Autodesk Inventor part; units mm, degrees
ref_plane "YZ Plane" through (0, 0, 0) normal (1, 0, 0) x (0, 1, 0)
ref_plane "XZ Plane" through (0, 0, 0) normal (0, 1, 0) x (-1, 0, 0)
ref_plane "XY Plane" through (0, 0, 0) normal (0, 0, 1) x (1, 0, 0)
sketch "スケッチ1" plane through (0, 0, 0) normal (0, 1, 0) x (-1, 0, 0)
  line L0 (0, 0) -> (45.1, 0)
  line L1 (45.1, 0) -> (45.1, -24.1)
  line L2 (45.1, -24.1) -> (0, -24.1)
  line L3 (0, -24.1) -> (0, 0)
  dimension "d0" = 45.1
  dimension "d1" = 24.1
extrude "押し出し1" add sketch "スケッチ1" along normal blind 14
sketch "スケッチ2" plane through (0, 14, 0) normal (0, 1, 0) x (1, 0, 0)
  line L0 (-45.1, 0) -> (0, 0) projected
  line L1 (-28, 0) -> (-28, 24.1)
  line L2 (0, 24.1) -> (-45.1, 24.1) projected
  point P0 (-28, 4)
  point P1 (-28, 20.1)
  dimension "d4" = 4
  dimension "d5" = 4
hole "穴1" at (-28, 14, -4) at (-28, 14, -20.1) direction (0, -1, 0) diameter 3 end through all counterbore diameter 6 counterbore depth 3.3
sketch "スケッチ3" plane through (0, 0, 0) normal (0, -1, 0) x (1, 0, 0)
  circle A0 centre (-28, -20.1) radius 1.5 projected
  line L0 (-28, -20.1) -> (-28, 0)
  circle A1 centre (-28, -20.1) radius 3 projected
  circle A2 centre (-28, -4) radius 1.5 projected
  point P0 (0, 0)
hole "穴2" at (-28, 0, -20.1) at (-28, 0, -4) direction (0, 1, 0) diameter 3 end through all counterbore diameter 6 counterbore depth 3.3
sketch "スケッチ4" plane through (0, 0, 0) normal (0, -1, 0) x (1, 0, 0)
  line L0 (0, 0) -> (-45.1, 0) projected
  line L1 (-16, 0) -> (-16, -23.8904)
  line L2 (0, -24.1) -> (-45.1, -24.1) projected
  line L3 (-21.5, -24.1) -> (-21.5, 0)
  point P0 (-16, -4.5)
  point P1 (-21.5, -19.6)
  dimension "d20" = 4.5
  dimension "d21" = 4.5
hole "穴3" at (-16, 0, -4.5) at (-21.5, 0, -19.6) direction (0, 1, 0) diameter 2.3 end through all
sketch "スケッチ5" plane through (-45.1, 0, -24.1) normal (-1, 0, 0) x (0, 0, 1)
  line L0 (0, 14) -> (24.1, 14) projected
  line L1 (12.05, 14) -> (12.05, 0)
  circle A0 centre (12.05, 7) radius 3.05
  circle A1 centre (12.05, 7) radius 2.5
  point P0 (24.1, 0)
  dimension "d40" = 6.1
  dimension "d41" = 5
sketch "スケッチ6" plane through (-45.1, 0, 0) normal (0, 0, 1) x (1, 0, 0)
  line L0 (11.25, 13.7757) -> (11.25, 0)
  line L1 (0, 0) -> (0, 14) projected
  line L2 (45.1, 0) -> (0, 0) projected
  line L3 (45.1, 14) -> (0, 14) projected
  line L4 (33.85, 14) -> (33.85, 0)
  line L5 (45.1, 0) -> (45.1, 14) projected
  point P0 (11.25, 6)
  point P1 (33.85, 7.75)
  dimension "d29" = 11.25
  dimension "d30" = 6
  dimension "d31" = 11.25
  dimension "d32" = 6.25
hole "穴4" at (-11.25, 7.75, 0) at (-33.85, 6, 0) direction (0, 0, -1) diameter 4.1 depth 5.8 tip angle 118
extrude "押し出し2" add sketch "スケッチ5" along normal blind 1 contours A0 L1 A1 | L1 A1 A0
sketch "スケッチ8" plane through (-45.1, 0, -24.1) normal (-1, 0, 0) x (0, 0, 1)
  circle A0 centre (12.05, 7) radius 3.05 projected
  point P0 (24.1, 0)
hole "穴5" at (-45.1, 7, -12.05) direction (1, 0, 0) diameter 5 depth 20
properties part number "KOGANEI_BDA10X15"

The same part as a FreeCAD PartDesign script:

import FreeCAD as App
import Part
import Sketcher
Q = App.Units.Quantity


def add_polygon(sketch, points):
    """Adds a closed chain of lines whose ends are joined by coincident constraints."""
    first, n = sketch.GeometryCount, len(points)
    for a, b in zip(points, points[1:] + points[:1]):
        sketch.addGeometry(Part.LineSegment(App.Vector(*a, 0), App.Vector(*b, 0)), False)
    for i in range(n):
        sketch.addConstraint(Sketcher.Constraint("Coincident", first + i, 2, first + (i + 1) % n, 1))

doc = App.newDocument("Part")
body = doc.addObject("PartDesign::Body", "Body")

sketch1 = body.newObject("Sketcher::SketchObject", "Sketch")
sketch1.AttachmentSupport = (doc.getObject("XZ_Plane"), [""])
sketch1.MapMode = "FlatFace"
add_polygon(sketch1, [(-45, 0), (0, 0), (0, -24), (-45, -24)])
sketch1.addConstraint([
    Sketcher.Constraint("Horizontal", 0),
    Sketcher.Constraint("Vertical", 1),
    Sketcher.Constraint("Horizontal", 2),
    Sketcher.Constraint("Vertical", 3),
    Sketcher.Constraint("Coincident", 0, 2, -1, 1),
    Sketcher.Constraint("DistanceX", 0, 1, 0, 2, Q("45.1 mm")),
    Sketcher.Constraint("DistanceY", 1, 2, 1, 1, Q("24.1 mm")),
])
pad1 = body.newObject("PartDesign::Pad", "Pad")
pad1.Profile = sketch1
pad1.Length = 14
pad1.Reversed = True

sketch2 = body.newObject("Sketcher::SketchObject", "Sketch001")
sketch2.AttachmentSupport = (doc.getObject("XZ_Plane"), [""])
sketch2.MapMode = "FlatFace"
sketch2.AttachmentOffset = App.Placement(App.Vector(0, 0, -14), App.Rotation())
sketch2.addGeometry([
    Part.Circle(App.Vector(-28, -4, 0), App.Vector(0, 0, 1), 1.5),
    Part.Circle(App.Vector(-28, -20.1, 0), App.Vector(0, 0, 1), 1.5),
], False)
sketch2.addConstraint([
    Sketcher.Constraint("Equal", 0, 1),
    Sketcher.Constraint("Vertical", 0, 3, 1, 3),
    Sketcher.Constraint("Diameter", 0, Q("3 mm")),
    Sketcher.Constraint("DistanceX", 0, 3, -1, 1, Q("28 mm")),
    Sketcher.Constraint("DistanceY", 0, 3, -1, 1, Q("4 mm")),
    Sketcher.Constraint("DistanceY", 1, 3, -1, 1, Q("20.1 mm")),
])
doc.recompute()
hole = body.newObject("PartDesign::Hole", "Hole")
hole.Profile = sketch2
hole.ThreadType = "None"
hole.Diameter = 3
hole.DepthType = "ThroughAll"
hole.HoleCutType = "Counterbore"
hole.HoleCutDiameter = 6
hole.HoleCutDepth = 3.3
hole.Reversed = True

sketch3 = body.newObject("Sketcher::SketchObject", "Sketch002")
sketch3.AttachmentSupport = (doc.getObject("XZ_Plane"), [""])
sketch3.MapMode = "FlatFace"
sketch3.addGeometry([
    Part.Circle(App.Vector(-28, -20.1, 0), App.Vector(0, 0, 1), 1.5),
    Part.Circle(App.Vector(-28, -4, 0), App.Vector(0, 0, 1), 1.5),
], False)
sketch3.addConstraint([
    Sketcher.Constraint("Equal", 0, 1),
    Sketcher.Constraint("Vertical", 0, 3, 1, 3),
    Sketcher.Constraint("Diameter", 0, Q("3 mm")),
    Sketcher.Constraint("DistanceX", 0, 3, -1, 1, Q("28 mm")),
    Sketcher.Constraint("DistanceY", 1, 3, -1, 1, Q("4 mm")),
    Sketcher.Constraint("DistanceY", 0, 3, -1, 1, Q("20.1 mm")),
])
doc.recompute()
hole2 = body.newObject("PartDesign::Hole", "Hole001")
hole2.Profile = sketch3
hole2.ThreadType = "None"
hole2.Diameter = 3
hole2.DepthType = "ThroughAll"
hole2.HoleCutType = "Counterbore"
hole2.HoleCutDiameter = 6
hole2.HoleCutDepth = 3.3

sketch4 = body.newObject("Sketcher::SketchObject", "Sketch003")
sketch4.AttachmentSupport = (doc.getObject("XZ_Plane"), [""])
sketch4.MapMode = "FlatFace"
sketch4.addGeometry([
    Part.Circle(App.Vector(-16, -4.5, 0), App.Vector(0, 0, 1), 1.1),
    Part.Circle(App.Vector(-21.5, -19.6, 0), App.Vector(0, 0, 1), 1.1),
], False)
sketch4.addConstraint([
    Sketcher.Constraint("Equal", 0, 1),
    Sketcher.Constraint("Diameter", 0, Q("2.3 mm")),
    Sketcher.Constraint("DistanceX", 0, 3, -1, 1, Q("16 mm")),
    Sketcher.Constraint("DistanceY", 0, 3, -1, 1, Q("4.5 mm")),
    Sketcher.Constraint("DistanceX", 1, 3, -1, 1, Q("21.5 mm")),
    Sketcher.Constraint("DistanceY", 1, 3, -1, 1, Q("19.6 mm")),
])
doc.recompute()
hole3 = body.newObject("PartDesign::Hole", "Hole002")
hole3.Profile = sketch4
hole3.ThreadType = "None"
hole3.Diameter = 2.3
hole3.DepthType = "ThroughAll"

sketch5 = body.newObject("Sketcher::SketchObject", "Sketch004")
sketch5.AttachmentSupport = (doc.getObject("XY_Plane"), [""])
sketch5.MapMode = "FlatFace"
sketch5.addGeometry([
    Part.Circle(App.Vector(-11.2, 7.8, 0), App.Vector(0, 0, 1), 2),
    Part.Circle(App.Vector(-33.9, 6, 0), App.Vector(0, 0, 1), 2),
], False)
sketch5.addConstraint([
    Sketcher.Constraint("Equal", 0, 1),
    Sketcher.Constraint("Diameter", 0, Q("4.1 mm")),
    Sketcher.Constraint("DistanceY", -1, 1, 1, 3, Q("6 mm")),
    Sketcher.Constraint("DistanceX", 1, 3, 0, 3, Q("22.6 mm")),
    Sketcher.Constraint("DistanceX", 0, 3, -1, 1, Q("11.25 mm")),
    Sketcher.Constraint("DistanceY", -1, 1, 0, 3, Q("7.75 mm")),
])
doc.recompute()
hole4 = body.newObject("PartDesign::Hole", "Hole003")
hole4.Profile = sketch5
hole4.ThreadType = "None"
hole4.Diameter = 4.1
hole4.DepthType = "Dimension"
hole4.Depth = 5.8
hole4.DrillPoint = "Angled"
hole4.DrillPointAngle = 118

sketch6 = body.newObject("Sketcher::SketchObject", "Sketch005")
sketch6.AttachmentSupport = (doc.getObject("YZ_Plane"), [""])
sketch6.MapMode = "FlatFace"
sketch6.AttachmentOffset = App.Placement(App.Vector(0, 0, -45.1), App.Rotation())
sketch6.addGeometry([
    Part.Circle(App.Vector(7, -12.1, 0), App.Vector(0, 0, 1), 3),
    Part.Circle(App.Vector(7, -12.1, 0), App.Vector(0, 0, 1), 2.5),
], False)
sketch6.addConstraint([
    Sketcher.Constraint("Coincident", 1, 3, 0, 3),
    Sketcher.Constraint("Diameter", 1, Q("5 mm")),
    Sketcher.Constraint("Diameter", 0, Q("6.1 mm")),
    Sketcher.Constraint("DistanceX", -1, 1, 0, 3, Q("7 mm")),
    Sketcher.Constraint("DistanceY", 0, 3, -1, 1, Q("12.05 mm")),
])
pad2 = body.newObject("PartDesign::Pad", "Pad001")
pad2.Profile = sketch6
pad2.Length = 1
pad2.Reversed = True

sketch7 = body.newObject("Sketcher::SketchObject", "Sketch006")
sketch7.AttachmentSupport = (doc.getObject("YZ_Plane"), [""])
sketch7.MapMode = "FlatFace"
sketch7.AttachmentOffset = App.Placement(App.Vector(0, 0, -45.1), App.Rotation())
sketch7.addGeometry(Part.Circle(App.Vector(7, -12.1, 0), App.Vector(0, 0, 1), 2.5), False)
sketch7.addConstraint([
    Sketcher.Constraint("Diameter", 0, Q("5 mm")),
    Sketcher.Constraint("DistanceX", -1, 1, 0, 3, Q("7 mm")),
    Sketcher.Constraint("DistanceY", 0, 3, -1, 1, Q("12.05 mm")),
])
doc.recompute()
hole5 = body.newObject("PartDesign::Hole", "Hole004")
hole5.Profile = sketch7
hole5.ThreadType = "None"
hole5.Diameter = 5
hole5.DepthType = "Dimension"
hole5.Depth = 20
hole5.DrillPoint = "Flat"
hole5.Reversed = True

doc.recompute()
